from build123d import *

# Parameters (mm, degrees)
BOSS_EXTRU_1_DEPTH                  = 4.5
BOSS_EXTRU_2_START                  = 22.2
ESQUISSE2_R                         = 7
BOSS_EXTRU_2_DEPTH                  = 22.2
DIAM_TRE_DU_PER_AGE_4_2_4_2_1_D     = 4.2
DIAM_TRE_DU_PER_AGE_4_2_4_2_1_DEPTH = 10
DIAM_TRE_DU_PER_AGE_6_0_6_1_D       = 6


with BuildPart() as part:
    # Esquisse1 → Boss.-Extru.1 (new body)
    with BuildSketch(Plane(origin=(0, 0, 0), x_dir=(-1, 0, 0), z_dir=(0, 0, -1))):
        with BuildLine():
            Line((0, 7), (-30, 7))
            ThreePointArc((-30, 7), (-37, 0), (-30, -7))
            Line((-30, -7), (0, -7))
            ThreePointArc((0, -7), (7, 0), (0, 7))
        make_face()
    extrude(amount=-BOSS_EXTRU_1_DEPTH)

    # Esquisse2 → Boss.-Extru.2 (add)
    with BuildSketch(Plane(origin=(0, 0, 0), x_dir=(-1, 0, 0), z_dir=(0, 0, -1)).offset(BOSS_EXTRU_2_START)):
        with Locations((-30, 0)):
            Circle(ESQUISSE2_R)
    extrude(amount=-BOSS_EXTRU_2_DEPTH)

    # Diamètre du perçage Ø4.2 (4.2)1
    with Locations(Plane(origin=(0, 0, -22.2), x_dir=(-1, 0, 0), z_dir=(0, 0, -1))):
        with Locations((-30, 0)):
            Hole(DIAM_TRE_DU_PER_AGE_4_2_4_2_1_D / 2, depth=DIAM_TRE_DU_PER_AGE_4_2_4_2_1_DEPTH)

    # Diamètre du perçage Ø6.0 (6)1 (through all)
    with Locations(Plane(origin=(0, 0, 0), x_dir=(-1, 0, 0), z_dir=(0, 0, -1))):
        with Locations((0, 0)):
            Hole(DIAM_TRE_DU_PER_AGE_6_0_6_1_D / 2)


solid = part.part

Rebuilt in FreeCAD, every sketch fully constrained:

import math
import FreeCAD as App
import Part
import Sketcher

V = App.Vector
Q = App.Units.Quantity

doc = App.newDocument("Part")
body = doc.addObject("PartDesign::Body", "Body")

# Sketch on XY plane
sketch1 = body.newObject("Sketcher::SketchObject", "Sketch")
sketch1.AttachmentSupport = (doc.getObject("XY_Plane"), [""])
sketch1.MapMode = "FlatFace"
sketch1.addGeometry(Part.LineSegment(V(0, 7, 0), V(30, 7, 0)), False)
sketch1.addGeometry(Part.ArcOfCircle(Part.Circle(V(30, 0, 0), V(0, 0, 1), 7), math.radians(-90), math.radians(90)), False)
sketch1.addGeometry(Part.LineSegment(V(30, -7, 0), V(0, -7, 0)), False)
sketch1.addGeometry(Part.ArcOfCircle(Part.Circle(V(0, 0, 0), V(0, 0, 1), 7), math.radians(90), math.radians(270)), False)
sketch1.addConstraint(Sketcher.Constraint("Tangent", 0, 2, 1, 2))
sketch1.addConstraint(Sketcher.Constraint("Tangent", 1, 1, 2, 1))
sketch1.addConstraint(Sketcher.Constraint("Tangent", 2, 2, 3, 2))
sketch1.addConstraint(Sketcher.Constraint("Tangent", 3, 1, 0, 1))
sketch1.addConstraint(Sketcher.Constraint("Horizontal", 0))
sketch1.addConstraint(Sketcher.Constraint("Horizontal", 2))
sketch1.addConstraint(Sketcher.Constraint("Coincident", 3, 3, -1, 1))
sketch1.addConstraint(Sketcher.Constraint("Radius", 1, Q("7 mm")))
sketch1.addConstraint(Sketcher.Constraint("DistanceX", 0, 1, 0, 2, Q("30 mm")))
pad1 = body.newObject("PartDesign::Pad", "Pad")
pad1.Profile = sketch1
pad1.Length = 4.5

# Sketch on XY plane
sketch2 = body.newObject("Sketcher::SketchObject", "Sketch001")
sketch2.AttachmentSupport = (doc.getObject("XY_Plane"), [""])
sketch2.MapMode = "FlatFace"
sketch2.AttachmentOffset = App.Placement(V(0, 0, -22.2), App.Rotation())
sketch2.addGeometry(Part.Circle(V(30, 0, 0), V(0, 0, 1), 7), False)
sketch2.addConstraint(Sketcher.Constraint("PointOnObject", 0, 3, -1))
sketch2.addConstraint(Sketcher.Constraint("Diameter", 0, Q("14 mm")))
sketch2.addConstraint(Sketcher.Constraint("DistanceX", -1, 1, 0, 3, Q("30 mm")))
pad2 = body.newObject("PartDesign::Pad", "Pad001")
pad2.Profile = sketch2
pad2.Length = 22.2

# Sketch on XY plane
sketch3 = body.newObject("Sketcher::SketchObject", "Sketch002")
sketch3.AttachmentSupport = (doc.getObject("XY_Plane"), [""])
sketch3.MapMode = "FlatFace"
sketch3.AttachmentOffset = App.Placement(V(0, 0, -22.2), App.Rotation())
sketch3.addGeometry(Part.Circle(V(30, 0, 0), V(0, 0, 1), 2.1), False)
sketch3.addConstraint(Sketcher.Constraint("PointOnObject", 0, 3, -1))
sketch3.addConstraint(Sketcher.Constraint("Diameter", 0, Q("4.2 mm")))
sketch3.addConstraint(Sketcher.Constraint("DistanceX", -1, 1, 0, 3, Q("30 mm")))
doc.recompute()
hole = body.newObject("PartDesign::Hole", "Hole")
hole.Profile = sketch3
hole.ThreadType = "None"
hole.Diameter = 4.2
hole.DepthType = "Dimension"
hole.Depth = 10
hole.DrillPoint = "Flat"
hole.Reversed = True

# Sketch on XY plane
sketch4 = body.newObject("Sketcher::SketchObject", "Sketch003")
sketch4.AttachmentSupport = (doc.getObject("XY_Plane"), [""])
sketch4.MapMode = "FlatFace"
sketch4.addGeometry(Part.Circle(V(0, 0, 0), V(0, 0, 1), 3), False)
sketch4.addConstraint(Sketcher.Constraint("Coincident", 0, 3, -1, 1))
sketch4.addConstraint(Sketcher.Constraint("Diameter", 0, Q("6 mm")))
doc.recompute()
hole2 = body.newObject("PartDesign::Hole", "Hole001")
hole2.Profile = sketch4
hole2.ThreadType = "None"
hole2.Diameter = 6
hole2.DepthType = "ThroughAll"
hole2.Reversed = True

doc.recompute()
